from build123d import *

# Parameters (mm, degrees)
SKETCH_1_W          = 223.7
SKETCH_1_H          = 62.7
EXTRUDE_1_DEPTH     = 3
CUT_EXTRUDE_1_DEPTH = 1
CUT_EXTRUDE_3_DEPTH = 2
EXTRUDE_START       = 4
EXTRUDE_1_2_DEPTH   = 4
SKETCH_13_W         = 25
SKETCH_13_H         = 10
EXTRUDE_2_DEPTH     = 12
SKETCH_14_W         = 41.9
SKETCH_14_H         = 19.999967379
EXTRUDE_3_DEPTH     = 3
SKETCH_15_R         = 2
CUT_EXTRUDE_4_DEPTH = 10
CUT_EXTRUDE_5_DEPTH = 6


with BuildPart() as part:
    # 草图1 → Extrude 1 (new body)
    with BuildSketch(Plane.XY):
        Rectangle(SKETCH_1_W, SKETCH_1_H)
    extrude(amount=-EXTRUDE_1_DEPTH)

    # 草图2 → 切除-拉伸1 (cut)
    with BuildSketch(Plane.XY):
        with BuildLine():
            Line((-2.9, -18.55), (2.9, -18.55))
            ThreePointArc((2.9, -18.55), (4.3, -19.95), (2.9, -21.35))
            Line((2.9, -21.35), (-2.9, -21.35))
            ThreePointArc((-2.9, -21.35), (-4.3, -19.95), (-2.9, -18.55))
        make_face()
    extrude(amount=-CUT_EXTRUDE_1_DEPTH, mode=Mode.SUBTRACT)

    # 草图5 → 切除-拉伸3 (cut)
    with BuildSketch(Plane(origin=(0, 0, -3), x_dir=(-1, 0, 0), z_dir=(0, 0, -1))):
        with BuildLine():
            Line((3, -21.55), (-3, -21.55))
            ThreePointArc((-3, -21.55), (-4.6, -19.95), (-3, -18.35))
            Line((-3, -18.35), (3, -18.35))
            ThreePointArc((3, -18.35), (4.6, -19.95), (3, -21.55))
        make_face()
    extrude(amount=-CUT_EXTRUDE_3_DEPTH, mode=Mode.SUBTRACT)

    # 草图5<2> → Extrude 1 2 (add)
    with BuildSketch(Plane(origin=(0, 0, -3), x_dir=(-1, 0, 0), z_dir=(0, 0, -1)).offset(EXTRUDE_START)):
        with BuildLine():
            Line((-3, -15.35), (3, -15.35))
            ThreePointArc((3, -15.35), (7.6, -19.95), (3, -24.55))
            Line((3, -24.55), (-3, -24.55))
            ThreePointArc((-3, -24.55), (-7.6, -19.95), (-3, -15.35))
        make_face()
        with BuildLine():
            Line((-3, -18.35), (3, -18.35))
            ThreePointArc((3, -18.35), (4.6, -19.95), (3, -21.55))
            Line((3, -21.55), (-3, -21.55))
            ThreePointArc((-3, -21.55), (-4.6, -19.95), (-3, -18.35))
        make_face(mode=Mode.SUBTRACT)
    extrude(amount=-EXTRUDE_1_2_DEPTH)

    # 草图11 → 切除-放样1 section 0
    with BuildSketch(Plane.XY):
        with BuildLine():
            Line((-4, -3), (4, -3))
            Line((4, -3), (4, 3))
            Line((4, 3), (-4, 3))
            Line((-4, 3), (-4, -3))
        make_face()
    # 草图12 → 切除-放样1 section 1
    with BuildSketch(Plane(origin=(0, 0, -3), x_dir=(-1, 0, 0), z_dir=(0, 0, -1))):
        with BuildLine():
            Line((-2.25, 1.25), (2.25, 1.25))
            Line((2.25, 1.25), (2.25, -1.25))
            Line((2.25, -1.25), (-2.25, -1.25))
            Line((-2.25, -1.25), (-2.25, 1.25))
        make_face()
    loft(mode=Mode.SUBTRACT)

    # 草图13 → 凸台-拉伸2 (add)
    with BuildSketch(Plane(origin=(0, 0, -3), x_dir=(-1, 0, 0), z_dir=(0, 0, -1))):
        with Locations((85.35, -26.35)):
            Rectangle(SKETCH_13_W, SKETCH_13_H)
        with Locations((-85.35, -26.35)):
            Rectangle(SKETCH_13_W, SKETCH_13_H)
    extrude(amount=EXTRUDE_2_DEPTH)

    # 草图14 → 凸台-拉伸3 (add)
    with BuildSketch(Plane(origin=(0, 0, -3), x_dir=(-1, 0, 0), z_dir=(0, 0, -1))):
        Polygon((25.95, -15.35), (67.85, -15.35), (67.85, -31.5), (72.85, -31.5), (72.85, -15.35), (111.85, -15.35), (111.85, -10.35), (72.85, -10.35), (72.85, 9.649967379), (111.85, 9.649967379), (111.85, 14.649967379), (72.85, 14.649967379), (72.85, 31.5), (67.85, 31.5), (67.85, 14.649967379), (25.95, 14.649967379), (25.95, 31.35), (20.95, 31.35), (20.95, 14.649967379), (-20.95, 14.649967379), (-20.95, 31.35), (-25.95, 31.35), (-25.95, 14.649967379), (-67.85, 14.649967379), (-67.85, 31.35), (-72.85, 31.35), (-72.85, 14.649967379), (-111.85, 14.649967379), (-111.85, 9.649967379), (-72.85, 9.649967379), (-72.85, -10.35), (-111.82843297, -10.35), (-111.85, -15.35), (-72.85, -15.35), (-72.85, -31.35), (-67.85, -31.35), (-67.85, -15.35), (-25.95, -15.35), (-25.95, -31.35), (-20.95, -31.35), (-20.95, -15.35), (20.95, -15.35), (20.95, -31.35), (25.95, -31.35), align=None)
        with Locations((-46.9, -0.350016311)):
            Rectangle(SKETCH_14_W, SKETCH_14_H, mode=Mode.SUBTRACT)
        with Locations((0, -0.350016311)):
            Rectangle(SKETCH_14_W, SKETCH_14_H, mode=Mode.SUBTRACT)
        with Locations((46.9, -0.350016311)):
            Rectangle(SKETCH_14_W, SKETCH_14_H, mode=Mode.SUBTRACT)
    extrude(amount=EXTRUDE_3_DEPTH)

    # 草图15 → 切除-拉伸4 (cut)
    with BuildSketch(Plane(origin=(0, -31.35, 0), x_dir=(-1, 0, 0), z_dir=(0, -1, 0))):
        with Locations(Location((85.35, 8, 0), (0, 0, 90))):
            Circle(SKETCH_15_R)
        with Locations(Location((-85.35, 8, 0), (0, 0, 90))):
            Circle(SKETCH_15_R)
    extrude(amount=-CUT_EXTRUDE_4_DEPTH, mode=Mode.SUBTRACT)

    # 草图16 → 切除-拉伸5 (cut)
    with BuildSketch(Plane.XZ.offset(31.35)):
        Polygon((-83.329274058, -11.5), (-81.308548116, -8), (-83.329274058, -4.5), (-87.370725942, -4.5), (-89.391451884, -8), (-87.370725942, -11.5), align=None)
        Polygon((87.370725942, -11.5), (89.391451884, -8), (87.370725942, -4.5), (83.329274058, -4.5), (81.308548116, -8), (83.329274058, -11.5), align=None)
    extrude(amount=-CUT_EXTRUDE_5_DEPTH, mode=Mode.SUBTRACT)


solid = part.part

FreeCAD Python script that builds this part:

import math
import FreeCAD as App
import Part
import Sketcher

V = App.Vector
Q = App.Units.Quantity


def add_polygon(sketch, points):
    """Adds a closed chain of lines whose ends are joined by coincident constraints."""
    first, n = sketch.GeometryCount, len(points)
    for a, b in zip(points, points[1:] + points[:1]):
        sketch.addGeometry(Part.LineSegment(App.Vector(*a, 0), App.Vector(*b, 0)), False)
    for i in range(n):
        sketch.addConstraint(Sketcher.Constraint("Coincident", first + i, 2, first + (i + 1) % n, 1))

doc = App.newDocument("Part")
body = doc.addObject("PartDesign::Body", "Body")

sketch1 = doc.addObject("Sketcher::SketchObject", "Sketch")
body.addObject(sketch1)
sketch1.AttachmentSupport = (doc.XY_Plane, [""])
sketch1.MapMode = "FlatFace"
add_polygon(sketch1, [(-112, 31), (-112, -31), (112, -31), (112, 31)])
sketch1.addConstraint([
    Sketcher.Constraint("Vertical", 0),
    Sketcher.Constraint("Horizontal", 1),
    Sketcher.Constraint("Vertical", 2),
    Sketcher.Constraint("Horizontal", 3),
    Sketcher.Constraint("Symmetric", 0, 2, 2, 2, -1, 1),
    Sketcher.Constraint("DistanceX", 1, 1, 1, 2, Q("223.7 mm")),
    Sketcher.Constraint("DistanceY", 0, 2, 0, 1, Q("62.7 mm")),
])
pad1 = doc.addObject("PartDesign::Pad", "Pad")
body.addObject(pad1)
pad1.Profile = sketch1
pad1.Length = 3
pad1.Reversed = True

sketch2 = doc.addObject("Sketcher::SketchObject", "Sketch001")
body.addObject(sketch2)
sketch2.AttachmentSupport = (doc.XY_Plane, [""])
sketch2.MapMode = "FlatFace"
sketch2.addGeometry([
    Part.LineSegment(V(2.9, -18.6, 0), V(-2.9, -18.6, 0)),
    Part.ArcOfCircle(Part.Circle(V(-2.9, -19.9, 0), V(0, 0, 1), 1.4), math.radians(90), math.radians(270)),
    Part.LineSegment(V(-2.9, -21.4, 0), V(2.9, -21.4, 0)),
    Part.ArcOfCircle(Part.Circle(V(2.9, -19.9, 0), V(0, 0, 1), 1.4), math.radians(-90), math.radians(90)),
], False)
sketch2.addConstraint([
    Sketcher.Constraint("Tangent", 0, 2, 1, 1),
    Sketcher.Constraint("Tangent", 1, 2, 2, 1),
    Sketcher.Constraint("Tangent", 2, 2, 3, 1),
    Sketcher.Constraint("Tangent", 3, 2, 0, 1),
    Sketcher.Constraint("Horizontal", 0),
    Sketcher.Constraint("Horizontal", 2),
    Sketcher.Constraint("Radius", 1, Q("1.4 mm")),
    Sketcher.Constraint("DistanceX", 0, 2, 0, 1, Q("5.8 mm")),
    Sketcher.Constraint("DistanceX", 1, 3, -1, 1, Q("2.9 mm")),
    Sketcher.Constraint("DistanceY", 1, 3, -1, 1, Q("19.95 mm")),
])
pocket1 = doc.addObject("PartDesign::Pocket", "Pocket")
body.addObject(pocket1)
pocket1.Profile = sketch2
pocket1.Length = 1

sketch3 = doc.addObject("Sketcher::SketchObject", "Sketch002")
body.addObject(sketch3)
sketch3.AttachmentSupport = (doc.XY_Plane, [""])
sketch3.MapMode = "FlatFace"
sketch3.AttachmentOffset = App.Placement(V(0, 0, -3), App.Rotation())
sketch3.addGeometry([
    Part.LineSegment(V(3, -21.6, 0), V(-3, -21.6, 0)),
    Part.ArcOfCircle(Part.Circle(V(-3, -19.9, 0), V(0, 0, 1), 1.6), math.radians(90), math.radians(270)),
    Part.LineSegment(V(-3, -18.4, 0), V(3, -18.4, 0)),
    Part.ArcOfCircle(Part.Circle(V(3, -19.9, 0), V(0, 0, 1), 1.6), math.radians(-90), math.radians(90)),
], False)
sketch3.addConstraint([
    Sketcher.Constraint("Tangent", 0, 2, 1, 2),
    Sketcher.Constraint("Tangent", 1, 1, 2, 1),
    Sketcher.Constraint("Tangent", 2, 2, 3, 2),
    Sketcher.Constraint("Tangent", 3, 1, 0, 1),
    Sketcher.Constraint("Horizontal", 0),
    Sketcher.Constraint("Horizontal", 2),
    Sketcher.Constraint("Radius", 1, Q("1.6 mm")),
    Sketcher.Constraint("DistanceX", 0, 2, 0, 1, Q("6 mm")),
    Sketcher.Constraint("DistanceX", 1, 3, -1, 1, Q("3 mm")),
    Sketcher.Constraint("DistanceY", 1, 3, -1, 1, Q("19.95 mm")),
])
pocket2 = doc.addObject("PartDesign::Pocket", "Pocket001")
body.addObject(pocket2)
pocket2.Profile = sketch3
pocket2.Length = 2
pocket2.Reversed = True

sketch4 = doc.addObject("Sketcher::SketchObject", "Sketch003")
body.addObject(sketch4)
sketch4.AttachmentSupport = (doc.XY_Plane, [""])
sketch4.MapMode = "FlatFace"
sketch4.AttachmentOffset = App.Placement(V(0, 0, -7), App.Rotation())
sketch4.addGeometry([
    Part.LineSegment(V(-3, -15.3, 0), V(3, -15.3, 0)),
    Part.ArcOfCircle(Part.Circle(V(3, -19.9, 0), V(0, 0, 1), 4.6), math.radians(-90), math.radians(90)),
    Part.LineSegment(V(3, -24.6, 0), V(-3, -24.6, 0)),
    Part.ArcOfCircle(Part.Circle(V(-3, -19.9, 0), V(0, 0, 1), 4.6), math.radians(90), math.radians(270)),
    Part.LineSegment(V(3, -18.4, 0), V(-3, -18.4, 0)),
    Part.ArcOfCircle(Part.Circle(V(-3, -19.9, 0), V(0, 0, 1), 1.6), math.radians(90), math.radians(270)),
    Part.LineSegment(V(-3, -21.6, 0), V(3, -21.6, 0)),
    Part.ArcOfCircle(Part.Circle(V(3, -19.9, 0), V(0, 0, 1), 1.6), math.radians(-90), math.radians(90)),
], False)
sketch4.addConstraint([
    Sketcher.Constraint("Tangent", 0, 2, 1, 2),
    Sketcher.Constraint("Tangent", 1, 1, 2, 1),
    Sketcher.Constraint("Tangent", 2, 2, 3, 2),
    Sketcher.Constraint("Tangent", 3, 1, 0, 1),
    Sketcher.Constraint("Tangent", 4, 2, 5, 1),
    Sketcher.Constraint("Tangent", 5, 2, 6, 1),
    Sketcher.Constraint("Tangent", 6, 2, 7, 1),
    Sketcher.Constraint("Tangent", 7, 2, 4, 1),
    Sketcher.Constraint("Horizontal", 0),
    Sketcher.Constraint("Horizontal", 2),
    Sketcher.Constraint("Horizontal", 4),
    Sketcher.Constraint("Horizontal", 6),
    Sketcher.Constraint("Coincident", 5, 3, 3, 3),
    Sketcher.Constraint("Vertical", 7, 3, 0, 2),
    Sketcher.Constraint("Radius", 1, Q("4.6 mm")),
    Sketcher.Constraint("Radius", 5, Q("1.6 mm")),
    Sketcher.Constraint("DistanceX", 0, 1, 0, 2, Q("6 mm")),
    Sketcher.Constraint("DistanceX", -1, 1, 1, 3, Q("3 mm")),
    Sketcher.Constraint("DistanceY", 1, 3, -1, 1, Q("19.95 mm")),
])
pad2 = doc.addObject("PartDesign::Pad", "Pad001")
body.addObject(pad2)
pad2.Profile = sketch4
pad2.Length = 4

sketch5 = doc.addObject("Sketcher::SketchObject", "Sketch004")
body.addObject(sketch5)
sketch5.AttachmentSupport = (doc.XY_Plane, [""])
sketch5.MapMode = "FlatFace"
add_polygon(sketch5, [(-4, -3), (4, -3), (4, 3), (-4, 3)])
sketch5.addConstraint([
    Sketcher.Constraint("Horizontal", 0),
    Sketcher.Constraint("Vertical", 1),
    Sketcher.Constraint("Horizontal", 2),
    Sketcher.Constraint("Vertical", 3),
    Sketcher.Constraint("Symmetric", 0, 2, 2, 2, -1, 1),
    Sketcher.Constraint("DistanceX", 0, 1, 0, 2, Q("8 mm")),
    Sketcher.Constraint("DistanceY", 1, 1, 1, 2, Q("6 mm")),
])

sketch6 = doc.addObject("Sketcher::SketchObject", "Sketch005")
body.addObject(sketch6)
sketch6.AttachmentSupport = (doc.XY_Plane, [""])
sketch6.MapMode = "FlatFace"
sketch6.AttachmentOffset = App.Placement(V(0, 0, -3), App.Rotation())
add_polygon(sketch6, [(-2.2, 1.2), (2.2, 1.2), (2.2, -1.2), (-2.2, -1.2)])
sketch6.addConstraint([
    Sketcher.Constraint("Horizontal", 0),
    Sketcher.Constraint("Vertical", 1),
    Sketcher.Constraint("Horizontal", 2),
    Sketcher.Constraint("Vertical", 3),
    Sketcher.Constraint("Symmetric", 0, 2, 2, 2, -1, 1),
    Sketcher.Constraint("DistanceX", 0, 1, 0, 2, Q("4.5 mm")),
    Sketcher.Constraint("DistanceY", 1, 2, 1, 1, Q("2.5 mm")),
])

subtractiveloft = doc.addObject("PartDesign::SubtractiveLoft", "SubtractiveLoft")
body.addObject(subtractiveloft)
subtractiveloft.Profile = sketch5
subtractiveloft.Sections = [sketch6]

sketch7 = doc.addObject("Sketcher::SketchObject", "Sketch006")
body.addObject(sketch7)
sketch7.AttachmentSupport = (doc.XY_Plane, [""])
sketch7.MapMode = "FlatFace"
sketch7.AttachmentOffset = App.Placement(V(0, 0, -3), App.Rotation())
add_polygon(sketch7, [(-73, -21), (-73, -31), (-98, -31), (-98, -21)])
add_polygon(sketch7, [(98, -21), (98, -31), (73, -31), (73, -21)])
sketch7.addConstraint([
    Sketcher.Constraint("Vertical", 0),
    Sketcher.Constraint("Horizontal", 1),
    Sketcher.Constraint("Vertical", 2),
    Sketcher.Constraint("Horizontal", 3),
    Sketcher.Constraint("Vertical", 4),
    Sketcher.Constraint("Horizontal", 5),
    Sketcher.Constraint("Vertical", 6),
    Sketcher.Constraint("Horizontal", 7),
    Sketcher.Constraint("Symmetric", 1, 2, 4, 2, -2),
    Sketcher.Constraint("Symmetric", 3, 2, 6, 2, -2),
    Sketcher.Constraint("DistanceX", 1, 2, 1, 1, Q("25 mm")),
    Sketcher.Constraint("DistanceY", 0, 2, 0, 1, Q("10 mm")),
    Sketcher.Constraint("DistanceX", 0, 2, 4, 2, Q("170.7 mm")),
    Sketcher.Constraint("DistanceY", 0, 2, -1, 1, Q("31.35 mm")),
])
pad3 = doc.addObject("PartDesign::Pad", "Pad002")
body.addObject(pad3)
pad3.Profile = sketch7
pad3.Length = 12
pad3.Reversed = True

sketch8 = doc.addObject("Sketcher::SketchObject", "Sketch007")
body.addObject(sketch8)
sketch8.AttachmentSupport = (doc.XY_Plane, [""])
sketch8.MapMode = "FlatFace"
sketch8.AttachmentOffset = App.Placement(V(0, 0, -3), App.Rotation())
add_polygon(sketch8, [(-26, -15), (-68, -15), (-68, -32), (-73, -32), (-73, -15), (-112, -15), (-112, -10), (-73, -10), (-73, 10), (-112, 10), (-112, 15), (-73, 15), (-73, 32), (-68, 32), (-68, 15), (-26, 15), (-26, 31), (-21, 31), (-21, 15), (21, 15), (21, 31), (26, 31), (26, 15), (68, 15), (68, 31), (73, 31), (73, 15), (112, 15), (112, 10), (73, 10), (73, -10), (112, -10), (112, -15), (73, -15), (73, -31), (68, -31), (68, -15), (26, -15), (26, -31), (21, -31), (21, -15), (-21, -15), (-21, -31), (-26, -31)])
add_polygon(sketch8, [(26, -10), (68, -10), (68, 10), (26, 10)])
add_polygon(sketch8, [(-21, -10), (21, -10), (21, 10), (-21, 10)])
add_polygon(sketch8, [(-68, -10), (-26, -10), (-26, 10), (-68, 10)])
sketch8.addConstraint([
    Sketcher.Constraint("Horizontal", 0),
    Sketcher.Constraint("Vertical", 1),
    Sketcher.Constraint("Horizontal", 2),
    Sketcher.Constraint("Vertical", 3),
    Sketcher.Constraint("Horizontal", 4),
    Sketcher.Constraint("Vertical", 5),
    Sketcher.Constraint("Horizontal", 6),
    Sketcher.Constraint("Vertical", 7),
    Sketcher.Constraint("Horizontal", 8),
    Sketcher.Constraint("Vertical", 9),
    Sketcher.Constraint("Horizontal", 10),
    Sketcher.Constraint("Vertical", 11),
    Sketcher.Constraint("Horizontal", 12),
    Sketcher.Constraint("Vertical", 13),
    Sketcher.Constraint("Horizontal", 14),
    Sketcher.Constraint("Vertical", 15),
    Sketcher.Constraint("Horizontal", 16),
    Sketcher.Constraint("Vertical", 17),
    Sketcher.Constraint("Horizontal", 18),
    Sketcher.Constraint("Vertical", 19),
    Sketcher.Constraint("Horizontal", 20),
    Sketcher.Constraint("Vertical", 21),
    Sketcher.Constraint("Horizontal", 22),
    Sketcher.Constraint("Vertical", 23),
    Sketcher.Constraint("Horizontal", 24),
    Sketcher.Constraint("Vertical", 25),
    Sketcher.Constraint("Horizontal", 26),
    Sketcher.Constraint("Vertical", 27),
    Sketcher.Constraint("Horizontal", 28),
    Sketcher.Constraint("Vertical", 29),
    Sketcher.Constraint("Horizontal", 30),
    Sketcher.Constraint("Horizontal", 32),
    Sketcher.Constraint("Vertical", 33),
    Sketcher.Constraint("Horizontal", 34),
    Sketcher.Constraint("Vertical", 35),
    Sketcher.Constraint("Horizontal", 36),
    Sketcher.Constraint("Vertical", 37),
    Sketcher.Constraint("Horizontal", 38),
    Sketcher.Constraint("Vertical", 39),
    Sketcher.Constraint("Horizontal", 40),
    Sketcher.Constraint("Vertical", 41),
    Sketcher.Constraint("Horizontal", 42),
    Sketcher.Constraint("Vertical", 43),
    Sketcher.Constraint("Horizontal", 44),
    Sketcher.Constraint("Vertical", 45),
    Sketcher.Constraint("Horizontal", 46),
    Sketcher.Constraint("Vertical", 47),
    Sketcher.Constraint("Horizontal", 48),
    Sketcher.Constraint("Vertical", 49),
    Sketcher.Constraint("Horizontal", 50),
    Sketcher.Constraint("Vertical", 51),
    Sketcher.Constraint("Horizontal", 52),
    Sketcher.Constraint("Vertical", 53),
    Sketcher.Constraint("Horizontal", 54),
    Sketcher.Constraint("Vertical", 55),
    Sketcher.Constraint("Symmetric", 15, 2, 37, 2, -1, 1),
    Sketcher.Constraint("Symmetric", 19, 2, 41, 2, -1, 1),
    Sketcher.Constraint("Symmetric", 16, 2, 19, 2, -2),
    Sketcher.Constraint("Symmetric", 14, 2, 21, 2, -2),
    Sketcher.Constraint("Symmetric", 10, 2, 25, 2, -2),
    Sketcher.Constraint("Symmetric", 8, 2, 27, 2, -2),
    Sketcher.Constraint("Symmetric", 6, 2, 29, 2, -2),
    Sketcher.Constraint("Symmetric", 4, 2, 31, 2, -2),
    Sketcher.Constraint("Symmetric", 0, 2, 35, 2, -2),
    Sketcher.Constraint("Symmetric", 47, 2, 52, 2, -2),
    Sketcher.Constraint("Symmetric", 45, 2, 54, 2, -2),
    Sketcher.Constraint("Symmetric", 2, 2, 11, 2, -1),
    Sketcher.Constraint("Symmetric", 24, 2, 33, 2, -1),
    Sketcher.Constraint("Horizontal", 0, 2, 3, 2),
    Sketcher.Constraint("Horizontal", 10, 2, 13, 2),
    Sketcher.Constraint("Horizontal", 14, 2, 17, 2),
    Sketcher.Constraint("Horizontal", 20, 2, 23, 2),
    Sketcher.Constraint("Horizontal", 36, 2, 39, 2),
    Sketcher.Constraint("Horizontal", 30, 2, 44, 2),
    Sketcher.Constraint("Horizontal", 28, 2, 45, 2),
    Sketcher.Constraint("Horizontal", 47, 2, 48, 2),
    Sketcher.Constraint("Horizontal", 46, 2, 49, 2),
    Sketcher.Constraint("Vertical", 3, 2, 6, 2),
    Sketcher.Constraint("Vertical", 5, 2, 8, 2),
    Sketcher.Constraint("Vertical", 1, 2, 12, 2),
    Sketcher.Constraint("Vertical", 23, 2, 34, 2),
    Sketcher.Constraint("Vertical", 19, 2, 38, 2),
    Sketcher.Constraint("Vertical", 15, 2, 42, 2),
    Sketcher.Constraint("Vertical", 35, 2, 44, 2),
    Sketcher.Constraint("Vertical", 37, 2, 46, 2),
    Sketcher.Constraint("Vertical", 39, 2, 48, 2),
    Sketcher.Constraint("Vertical", 41, 2, 50, 2),
    Sketcher.Constraint("Equal", 12, 16),
    Sketcher.Constraint("Equal", 14, 18),
    Sketcher.Constraint("Equal", 42, 5),
    Sketcher.Constraint("Equal", 5, 9),
    Sketcher.Constraint("DistanceX", 2, 2, 2, 1, Q("5 mm")),
    Sketcher.Constraint("DistanceX", 4, 2, 4, 1, Q("39 mm")),
    Sketcher.Constraint("DistanceY", 33, 2, 33, 1, Q("16 mm")),
    Sketcher.Constraint("DistanceX", 0, 2, 0, 1, Q("41.9 mm")),
    Sketcher.Constraint("DistanceY", 1, 2, 1, 1, Q("16.15 mm")),
    Sketcher.Constraint("DistanceY", 1, 2, -1, 1, Q("31.5 mm")),
    Sketcher.Constraint("DistanceX", 30, 1, 30, 2, Q("38.978433 mm")),
    Sketcher.Constraint("DistanceY", 7, 1, 7, 2, Q("19.999967 mm")),
])
pad4 = doc.addObject("PartDesign::Pad", "Pad003")
body.addObject(pad4)
pad4.Profile = sketch8
pad4.Length = 3
pad4.Reversed = True

sketch9 = doc.addObject("Sketcher::SketchObject", "Sketch008")
body.addObject(sketch9)
sketch9.AttachmentSupport = (doc.XZ_Plane, [""])
sketch9.MapMode = "FlatFace"
sketch9.AttachmentOffset = App.Placement(V(0, 0, 31.35), App.Rotation())
sketch9.addGeometry([
    Part.Circle(V(-85.3, -8, 0), V(0, 0, 1), 2),
    Part.Circle(V(85.3, -8, 0), V(0, 0, 1), 2),
], False)
sketch9.addConstraint([
    Sketcher.Constraint("Equal", 0, 1),
    Sketcher.Constraint("Symmetric", 0, 3, 1, 3, -2),
    Sketcher.Constraint("Diameter", 0, Q("4 mm")),
    Sketcher.Constraint("DistanceY", 0, 3, -1, 1, Q("8 mm")),
    Sketcher.Constraint("DistanceX", 0, 3, 1, 3, Q("170.7 mm")),
])
pocket3 = doc.addObject("PartDesign::Pocket", "Pocket002")
body.addObject(pocket3)
pocket3.Profile = sketch9
pocket3.Length = 10

sketch10 = doc.addObject("Sketcher::SketchObject", "Sketch009")
body.addObject(sketch10)
sketch10.AttachmentSupport = (doc.XZ_Plane, [""])
sketch10.MapMode = "FlatFace"
sketch10.AttachmentOffset = App.Placement(V(0, 0, 31.35), App.Rotation())
add_polygon(sketch10, [(-83.3, -11.5), (-81.3, -8), (-83.3, -4.5), (-87.4, -4.5), (-89.4, -8), (-87.4, -11.5)])
add_polygon(sketch10, [(87.4, -11.5), (89.4, -8), (87.4, -4.5), (83.3, -4.5), (81.3, -8), (83.3, -11.5)])
sketch10.addConstraint([
    Sketcher.Constraint("Horizontal", 2),
    Sketcher.Constraint("Horizontal", 5),
    Sketcher.Constraint("Horizontal", 8),
    Sketcher.Constraint("Horizontal", 11),
    Sketcher.Constraint("Symmetric", 3, 2, 6, 2, -2),
    Sketcher.Constraint("Symmetric", 2, 2, 7, 2, -2),
    Sketcher.Constraint("Symmetric", 0, 2, 9, 2, -2),
    Sketcher.Constraint("Symmetric", 5, 2, 10, 2, -2),
    Sketcher.Constraint("Parallel", 0, 3),
    Sketcher.Constraint("Parallel", 1, 4),
    Sketcher.Constraint("Parallel", 3, 6),
    Sketcher.Constraint("Parallel", 4, 7),
    Sketcher.Constraint("Parallel", 6, 9),
    Sketcher.Constraint("Horizontal", 0, 2, 3, 2),
    Sketcher.Constraint("Vertical", 2, 2, 4, 2),
    Sketcher.Constraint("Angle", 0, Q("60 deg")),
    Sketcher.Constraint("DistanceY", 0, 2, -1, 1, Q("8 mm")),
    Sketcher.Constraint("DistanceY", 4, 2, 2, 2, Q("7 mm")),
    Sketcher.Constraint("DistanceX", 0, 2, 6, 2, Q("170.7 mm")),
    Sketcher.Constraint("DistanceX", 2, 2, 2, 1, Q("4.041452 mm")),
])
pocket4 = doc.addObject("PartDesign::Pocket", "Pocket003")
body.addObject(pocket4)
pocket4.Profile = sketch10
pocket4.Length = 6

doc.recompute()
